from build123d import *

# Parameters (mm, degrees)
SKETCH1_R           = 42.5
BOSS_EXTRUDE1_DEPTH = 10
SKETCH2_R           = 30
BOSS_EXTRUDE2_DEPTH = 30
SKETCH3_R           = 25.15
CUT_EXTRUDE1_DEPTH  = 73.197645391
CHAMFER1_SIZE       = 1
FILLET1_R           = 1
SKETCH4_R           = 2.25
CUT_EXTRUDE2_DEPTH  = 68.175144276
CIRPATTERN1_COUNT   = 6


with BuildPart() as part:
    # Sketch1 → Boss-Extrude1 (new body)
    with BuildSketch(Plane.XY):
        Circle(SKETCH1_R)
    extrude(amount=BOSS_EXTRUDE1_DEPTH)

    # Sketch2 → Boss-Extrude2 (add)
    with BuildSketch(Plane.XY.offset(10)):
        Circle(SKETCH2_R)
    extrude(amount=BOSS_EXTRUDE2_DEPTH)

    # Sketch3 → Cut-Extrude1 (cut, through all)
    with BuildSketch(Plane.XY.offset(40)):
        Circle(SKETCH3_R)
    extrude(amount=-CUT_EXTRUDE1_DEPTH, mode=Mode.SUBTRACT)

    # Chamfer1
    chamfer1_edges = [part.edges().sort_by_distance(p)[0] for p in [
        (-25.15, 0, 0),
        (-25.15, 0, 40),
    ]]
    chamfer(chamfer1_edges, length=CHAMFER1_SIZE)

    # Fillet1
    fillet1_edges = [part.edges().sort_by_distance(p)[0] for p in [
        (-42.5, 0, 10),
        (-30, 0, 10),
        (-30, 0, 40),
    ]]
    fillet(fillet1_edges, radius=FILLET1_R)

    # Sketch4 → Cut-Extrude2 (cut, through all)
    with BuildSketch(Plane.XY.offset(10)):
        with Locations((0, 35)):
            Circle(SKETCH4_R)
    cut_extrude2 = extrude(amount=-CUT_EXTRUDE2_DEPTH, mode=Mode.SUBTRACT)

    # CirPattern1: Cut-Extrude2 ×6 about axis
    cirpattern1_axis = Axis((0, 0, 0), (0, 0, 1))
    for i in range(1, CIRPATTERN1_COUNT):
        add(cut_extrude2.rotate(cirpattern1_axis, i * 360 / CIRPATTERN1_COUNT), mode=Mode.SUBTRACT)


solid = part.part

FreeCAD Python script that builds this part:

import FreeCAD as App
import Part
import Sketcher
from FreeCAD import Vector


def edges_at(feature, points):
    """Names of the edges that pass closest to the given points."""
    edges = feature.Shape.Edges
    near = lambda p: min(range(len(edges)), key=lambda i: edges[i].distToShape(Part.Vertex(*p))[0])
    return sorted({f"Edge{near(p) + 1}" for p in points})

doc = App.newDocument("Part")
body = doc.addObject("PartDesign::Body", "Body")

sketch1 = body.newObject("Sketcher::SketchObject", "Sketch")
sketch1.AttachmentSupport = (doc.getObject("XY_Plane"), [""])
sketch1.MapMode = "FlatFace"
sketch1.addGeometry(Part.Circle(Vector(0, 0, 0), Vector(0, 0, 1), 42.5), False)
sketch1.addConstraint([
    Sketcher.Constraint("Coincident", 0, 3, -1, 1),
    Sketcher.Constraint("Diameter", 0, 85.0),
])
pad1 = body.newObject("PartDesign::Pad", "Pad")
pad1.Profile = sketch1
pad1.Length = 10

sketch2 = body.newObject("Sketcher::SketchObject", "Sketch001")
sketch2.AttachmentSupport = (doc.getObject("XY_Plane"), [""])
sketch2.MapMode = "FlatFace"
sketch2.AttachmentOffset = App.Placement(Vector(0, 0, 10), App.Rotation())
sketch2.addGeometry(Part.Circle(Vector(0, 0, 0), Vector(0, 0, 1), 30), False)
sketch2.addConstraint([
    Sketcher.Constraint("Coincident", 0, 3, -1, 1),
    Sketcher.Constraint("Diameter", 0, 60.0),
])
pad2 = body.newObject("PartDesign::Pad", "Pad001")
pad2.Profile = sketch2
pad2.Length = 30

sketch3 = body.newObject("Sketcher::SketchObject", "Sketch002")
sketch3.AttachmentSupport = (doc.getObject("XY_Plane"), [""])
sketch3.MapMode = "FlatFace"
sketch3.AttachmentOffset = App.Placement(Vector(0, 0, 40), App.Rotation())
sketch3.addGeometry(Part.Circle(Vector(0, 0, 0), Vector(0, 0, 1), 25.15), False)
sketch3.addConstraint([
    Sketcher.Constraint("Coincident", 0, 3, -1, 1),
    Sketcher.Constraint("Diameter", 0, 50.3),
])
pocket1 = body.newObject("PartDesign::Pocket", "Pocket")
pocket1.Profile = sketch3
pocket1.Type = "ThroughAll"
doc.recompute()

chamfer = body.newObject("PartDesign::Chamfer", "Chamfer")
chamfer.Base = (pocket1, edges_at(pocket1, [(-25.15, 0, 0), (-25.15, 0, 40)]))
chamfer.Size = 1
doc.recompute()

fillet = body.newObject("PartDesign::Fillet", "Fillet")
fillet.Base = (chamfer, edges_at(chamfer, [(-42.5, 0, 10), (-30, 0, 10), (-30, 0, 40)]))
fillet.Radius = 1

sketch4 = body.newObject("Sketcher::SketchObject", "Sketch003")
sketch4.AttachmentSupport = (doc.getObject("XY_Plane"), [""])
sketch4.MapMode = "FlatFace"
sketch4.AttachmentOffset = App.Placement(Vector(0, 0, 10), App.Rotation())
sketch4.addGeometry(Part.Circle(Vector(0, 35, 0), Vector(0, 0, 1), 2.25), False)
sketch4.addConstraint([
    Sketcher.Constraint("PointOnObject", 0, 3, -2),
    Sketcher.Constraint("Diameter", 0, 4.5),
    Sketcher.Constraint("DistanceY", -1, 1, 0, 3, 35.0),
])
pocket2 = body.newObject("PartDesign::Pocket", "Pocket001")
pocket2.Profile = sketch4
pocket2.Type = "ThroughAll"
doc.recompute()

polarpattern = body.newObject("PartDesign::PolarPattern", "PolarPattern")
polarpattern.Originals = [pocket2]
polarpattern.Axis = (doc.getObject("Z_Axis"), [""])
polarpattern.Angle = 360
polarpattern.Occurrences = 6
body.Tip = polarpattern

doc.recompute()
